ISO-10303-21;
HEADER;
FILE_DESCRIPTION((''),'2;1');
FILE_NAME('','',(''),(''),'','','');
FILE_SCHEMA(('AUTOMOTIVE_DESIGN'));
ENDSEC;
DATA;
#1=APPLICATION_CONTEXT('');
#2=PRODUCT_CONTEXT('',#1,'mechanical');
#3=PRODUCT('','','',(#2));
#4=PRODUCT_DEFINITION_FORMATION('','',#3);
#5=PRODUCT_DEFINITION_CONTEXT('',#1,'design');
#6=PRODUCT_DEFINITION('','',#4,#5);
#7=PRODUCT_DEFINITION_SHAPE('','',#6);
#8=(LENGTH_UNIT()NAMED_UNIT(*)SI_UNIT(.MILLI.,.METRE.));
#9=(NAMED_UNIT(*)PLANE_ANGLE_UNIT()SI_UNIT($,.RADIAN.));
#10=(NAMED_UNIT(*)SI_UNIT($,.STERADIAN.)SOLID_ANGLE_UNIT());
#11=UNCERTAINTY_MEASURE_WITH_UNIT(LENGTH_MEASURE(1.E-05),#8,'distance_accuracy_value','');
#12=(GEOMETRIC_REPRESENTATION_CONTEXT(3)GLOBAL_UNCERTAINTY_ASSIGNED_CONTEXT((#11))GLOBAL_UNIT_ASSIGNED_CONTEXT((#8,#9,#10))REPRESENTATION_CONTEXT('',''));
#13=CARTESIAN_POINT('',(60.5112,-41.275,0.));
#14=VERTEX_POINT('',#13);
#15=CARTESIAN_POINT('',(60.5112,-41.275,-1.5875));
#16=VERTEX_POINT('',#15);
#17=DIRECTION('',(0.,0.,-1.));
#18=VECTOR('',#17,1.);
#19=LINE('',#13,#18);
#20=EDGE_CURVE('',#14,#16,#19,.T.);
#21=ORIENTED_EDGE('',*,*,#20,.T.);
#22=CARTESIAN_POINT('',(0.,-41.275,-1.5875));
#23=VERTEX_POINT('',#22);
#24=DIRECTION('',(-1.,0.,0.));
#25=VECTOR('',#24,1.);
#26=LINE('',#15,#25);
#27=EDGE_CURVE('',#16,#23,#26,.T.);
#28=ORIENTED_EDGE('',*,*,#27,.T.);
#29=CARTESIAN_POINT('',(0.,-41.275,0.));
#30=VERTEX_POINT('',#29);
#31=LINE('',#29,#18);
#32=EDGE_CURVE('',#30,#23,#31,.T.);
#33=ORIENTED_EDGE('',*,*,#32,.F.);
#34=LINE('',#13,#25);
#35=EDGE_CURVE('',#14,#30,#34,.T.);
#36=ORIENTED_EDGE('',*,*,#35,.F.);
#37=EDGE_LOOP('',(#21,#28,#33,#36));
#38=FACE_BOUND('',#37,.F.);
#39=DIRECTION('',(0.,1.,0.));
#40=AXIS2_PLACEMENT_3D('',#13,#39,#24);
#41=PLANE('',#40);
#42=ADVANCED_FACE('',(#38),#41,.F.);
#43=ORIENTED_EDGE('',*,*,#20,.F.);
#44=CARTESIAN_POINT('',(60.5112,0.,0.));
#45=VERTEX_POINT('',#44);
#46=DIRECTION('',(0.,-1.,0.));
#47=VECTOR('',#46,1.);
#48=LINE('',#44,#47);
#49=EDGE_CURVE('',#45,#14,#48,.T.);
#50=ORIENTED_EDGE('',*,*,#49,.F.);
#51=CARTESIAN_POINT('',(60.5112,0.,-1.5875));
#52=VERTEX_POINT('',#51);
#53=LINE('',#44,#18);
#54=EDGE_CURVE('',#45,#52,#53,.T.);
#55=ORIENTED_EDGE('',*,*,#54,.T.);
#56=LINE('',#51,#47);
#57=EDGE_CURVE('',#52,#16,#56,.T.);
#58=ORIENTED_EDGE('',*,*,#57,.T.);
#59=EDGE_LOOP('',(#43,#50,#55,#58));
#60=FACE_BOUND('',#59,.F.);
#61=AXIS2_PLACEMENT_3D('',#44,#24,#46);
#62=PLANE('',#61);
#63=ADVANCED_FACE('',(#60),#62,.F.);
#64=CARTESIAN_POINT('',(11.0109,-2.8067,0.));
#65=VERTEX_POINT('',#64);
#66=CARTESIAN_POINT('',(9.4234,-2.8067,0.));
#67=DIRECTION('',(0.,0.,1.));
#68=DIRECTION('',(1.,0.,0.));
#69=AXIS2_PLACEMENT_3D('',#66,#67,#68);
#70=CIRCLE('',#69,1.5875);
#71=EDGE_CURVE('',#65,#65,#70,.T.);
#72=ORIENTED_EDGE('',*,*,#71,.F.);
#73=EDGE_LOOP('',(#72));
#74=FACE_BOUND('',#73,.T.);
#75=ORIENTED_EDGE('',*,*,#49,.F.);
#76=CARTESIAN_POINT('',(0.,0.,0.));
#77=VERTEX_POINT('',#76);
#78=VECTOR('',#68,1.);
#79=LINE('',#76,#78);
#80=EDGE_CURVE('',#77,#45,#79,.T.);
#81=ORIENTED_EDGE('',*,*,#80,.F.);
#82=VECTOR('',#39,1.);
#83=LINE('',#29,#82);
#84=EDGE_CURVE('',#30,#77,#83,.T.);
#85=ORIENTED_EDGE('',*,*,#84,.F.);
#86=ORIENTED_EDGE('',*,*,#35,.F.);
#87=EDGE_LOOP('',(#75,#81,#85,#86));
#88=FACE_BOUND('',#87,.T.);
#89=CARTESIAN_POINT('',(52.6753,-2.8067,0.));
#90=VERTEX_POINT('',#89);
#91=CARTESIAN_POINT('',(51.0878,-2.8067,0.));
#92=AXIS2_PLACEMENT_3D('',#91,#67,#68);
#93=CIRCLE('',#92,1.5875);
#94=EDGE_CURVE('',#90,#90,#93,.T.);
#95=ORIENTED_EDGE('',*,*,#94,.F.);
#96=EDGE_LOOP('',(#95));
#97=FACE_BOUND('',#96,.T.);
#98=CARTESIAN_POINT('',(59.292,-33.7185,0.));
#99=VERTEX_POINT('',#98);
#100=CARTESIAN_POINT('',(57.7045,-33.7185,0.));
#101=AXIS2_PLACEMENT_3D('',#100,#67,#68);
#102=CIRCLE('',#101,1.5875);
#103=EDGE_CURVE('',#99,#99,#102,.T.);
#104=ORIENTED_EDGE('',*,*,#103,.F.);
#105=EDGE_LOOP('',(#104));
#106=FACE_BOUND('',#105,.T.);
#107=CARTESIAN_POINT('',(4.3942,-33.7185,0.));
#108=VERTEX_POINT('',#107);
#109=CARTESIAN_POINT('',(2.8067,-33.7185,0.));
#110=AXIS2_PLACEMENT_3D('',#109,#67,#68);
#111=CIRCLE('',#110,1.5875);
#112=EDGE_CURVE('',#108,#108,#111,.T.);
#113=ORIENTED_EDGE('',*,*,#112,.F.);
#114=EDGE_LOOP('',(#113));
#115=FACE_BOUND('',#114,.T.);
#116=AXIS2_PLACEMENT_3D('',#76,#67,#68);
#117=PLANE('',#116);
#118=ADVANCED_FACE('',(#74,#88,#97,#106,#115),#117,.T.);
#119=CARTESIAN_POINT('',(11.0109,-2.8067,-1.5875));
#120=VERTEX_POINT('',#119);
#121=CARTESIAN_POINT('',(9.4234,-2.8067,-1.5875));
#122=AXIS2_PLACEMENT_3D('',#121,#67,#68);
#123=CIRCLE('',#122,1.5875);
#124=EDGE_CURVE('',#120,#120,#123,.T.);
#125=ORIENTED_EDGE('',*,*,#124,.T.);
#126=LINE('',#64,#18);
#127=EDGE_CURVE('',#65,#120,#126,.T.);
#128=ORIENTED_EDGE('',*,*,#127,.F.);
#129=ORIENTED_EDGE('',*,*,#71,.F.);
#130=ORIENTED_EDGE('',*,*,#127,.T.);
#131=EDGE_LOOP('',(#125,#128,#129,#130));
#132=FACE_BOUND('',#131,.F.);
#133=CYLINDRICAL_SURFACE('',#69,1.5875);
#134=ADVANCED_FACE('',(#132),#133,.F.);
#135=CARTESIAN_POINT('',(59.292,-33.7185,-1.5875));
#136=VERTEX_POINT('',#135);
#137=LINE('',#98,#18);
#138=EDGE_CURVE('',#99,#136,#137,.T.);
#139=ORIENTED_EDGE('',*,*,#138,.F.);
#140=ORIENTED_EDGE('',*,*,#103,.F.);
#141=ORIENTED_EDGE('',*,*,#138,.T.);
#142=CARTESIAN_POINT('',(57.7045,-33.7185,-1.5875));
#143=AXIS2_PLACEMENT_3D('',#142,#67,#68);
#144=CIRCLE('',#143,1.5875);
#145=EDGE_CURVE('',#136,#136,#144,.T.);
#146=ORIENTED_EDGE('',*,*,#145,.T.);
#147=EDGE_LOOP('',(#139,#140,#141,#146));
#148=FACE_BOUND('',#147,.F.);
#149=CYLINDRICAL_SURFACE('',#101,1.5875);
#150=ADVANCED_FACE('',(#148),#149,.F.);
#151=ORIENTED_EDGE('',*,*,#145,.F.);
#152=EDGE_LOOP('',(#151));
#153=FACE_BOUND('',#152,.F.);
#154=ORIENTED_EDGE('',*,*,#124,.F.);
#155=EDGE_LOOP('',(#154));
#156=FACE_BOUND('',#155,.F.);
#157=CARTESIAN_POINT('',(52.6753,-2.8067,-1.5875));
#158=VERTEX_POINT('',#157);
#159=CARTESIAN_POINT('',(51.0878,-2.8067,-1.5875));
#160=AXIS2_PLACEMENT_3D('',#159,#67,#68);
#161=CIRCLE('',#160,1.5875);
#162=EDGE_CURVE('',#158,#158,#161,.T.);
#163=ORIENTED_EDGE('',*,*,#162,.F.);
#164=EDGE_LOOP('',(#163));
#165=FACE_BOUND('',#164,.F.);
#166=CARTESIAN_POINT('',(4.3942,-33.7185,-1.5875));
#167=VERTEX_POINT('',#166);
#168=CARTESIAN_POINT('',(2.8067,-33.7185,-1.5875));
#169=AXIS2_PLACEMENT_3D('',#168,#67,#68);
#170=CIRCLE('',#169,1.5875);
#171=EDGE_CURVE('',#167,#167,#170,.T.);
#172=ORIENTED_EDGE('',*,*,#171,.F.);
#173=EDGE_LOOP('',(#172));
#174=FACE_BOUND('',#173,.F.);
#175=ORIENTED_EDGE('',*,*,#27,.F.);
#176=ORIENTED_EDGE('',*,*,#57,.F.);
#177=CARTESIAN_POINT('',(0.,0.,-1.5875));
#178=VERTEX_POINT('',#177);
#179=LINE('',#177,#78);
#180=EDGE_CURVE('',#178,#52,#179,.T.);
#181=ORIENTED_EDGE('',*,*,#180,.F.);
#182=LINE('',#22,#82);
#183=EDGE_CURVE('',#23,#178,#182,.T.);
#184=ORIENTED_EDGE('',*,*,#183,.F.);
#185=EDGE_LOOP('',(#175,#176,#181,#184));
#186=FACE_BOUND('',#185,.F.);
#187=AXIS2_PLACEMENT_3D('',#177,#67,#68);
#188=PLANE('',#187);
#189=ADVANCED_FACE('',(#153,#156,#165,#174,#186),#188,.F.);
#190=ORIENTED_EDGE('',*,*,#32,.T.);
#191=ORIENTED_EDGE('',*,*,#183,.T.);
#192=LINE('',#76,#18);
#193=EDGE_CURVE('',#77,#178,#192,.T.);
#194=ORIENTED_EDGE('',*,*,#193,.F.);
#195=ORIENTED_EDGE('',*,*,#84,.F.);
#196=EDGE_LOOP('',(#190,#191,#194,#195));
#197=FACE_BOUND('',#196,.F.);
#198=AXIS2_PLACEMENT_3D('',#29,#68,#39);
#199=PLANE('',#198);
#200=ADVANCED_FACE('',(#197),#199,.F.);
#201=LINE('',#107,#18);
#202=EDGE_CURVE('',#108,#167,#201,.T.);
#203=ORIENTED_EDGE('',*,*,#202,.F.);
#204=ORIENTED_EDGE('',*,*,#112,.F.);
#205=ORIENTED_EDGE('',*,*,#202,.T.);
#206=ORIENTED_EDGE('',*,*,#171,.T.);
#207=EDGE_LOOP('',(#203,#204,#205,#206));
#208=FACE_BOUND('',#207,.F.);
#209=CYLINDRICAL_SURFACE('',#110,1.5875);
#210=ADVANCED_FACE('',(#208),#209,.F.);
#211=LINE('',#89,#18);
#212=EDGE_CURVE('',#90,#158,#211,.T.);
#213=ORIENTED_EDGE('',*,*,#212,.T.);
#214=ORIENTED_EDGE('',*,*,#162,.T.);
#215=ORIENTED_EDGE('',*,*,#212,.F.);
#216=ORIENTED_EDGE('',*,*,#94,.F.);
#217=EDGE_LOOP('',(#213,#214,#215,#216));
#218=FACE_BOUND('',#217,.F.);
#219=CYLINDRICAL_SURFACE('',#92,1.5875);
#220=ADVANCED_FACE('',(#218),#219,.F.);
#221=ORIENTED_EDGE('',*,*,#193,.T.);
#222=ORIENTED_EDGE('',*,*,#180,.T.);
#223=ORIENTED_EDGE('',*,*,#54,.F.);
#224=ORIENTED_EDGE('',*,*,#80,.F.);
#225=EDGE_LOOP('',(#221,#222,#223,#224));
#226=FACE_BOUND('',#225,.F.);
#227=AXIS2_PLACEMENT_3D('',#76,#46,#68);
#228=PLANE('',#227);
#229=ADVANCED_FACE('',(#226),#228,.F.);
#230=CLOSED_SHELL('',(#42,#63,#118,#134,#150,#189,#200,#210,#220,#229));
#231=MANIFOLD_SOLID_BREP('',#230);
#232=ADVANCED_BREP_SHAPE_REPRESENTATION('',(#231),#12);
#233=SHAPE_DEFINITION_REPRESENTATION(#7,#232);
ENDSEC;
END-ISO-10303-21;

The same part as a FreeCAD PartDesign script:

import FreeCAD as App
import Part
import Sketcher
Q = App.Units.Quantity


def add_polygon(sketch, points):
    """Adds a closed chain of lines whose ends are joined by coincident constraints."""
    first, n = sketch.GeometryCount, len(points)
    for a, b in zip(points, points[1:] + points[:1]):
        sketch.addGeometry(Part.LineSegment(App.Vector(*a, 0), App.Vector(*b, 0)), False)
    for i in range(n):
        sketch.addConstraint(Sketcher.Constraint("Coincident", first + i, 2, first + (i + 1) % n, 1))

doc = App.newDocument("Part")
params = doc.addObject("Spreadsheet::Sheet", "Params")
for row, (alias, value) in enumerate([
    ("sketch1_height", "1.625 in"),
    ("pad1_length", "0.0625 in"),
    ("sketch2_diameter", "0.125 in"),
    ("pocket1_length", "0.0625 in"),
], start=1):
    params.set(f"A{row}", alias)
    params.set(f"B{row}", "=" + value)
    params.setAlias(f"B{row}", alias)

body = doc.addObject("PartDesign::Body", "Body")

# Sketch on XY plane
sketch1 = doc.addObject("Sketcher::SketchObject", "Sketch")
body.addObject(sketch1)
sketch1.AttachmentSupport = (doc.XY_Plane, [""])
sketch1.MapMode = "FlatFace"
add_polygon(sketch1, [(61, 0), (0, 0), (0, -41), (61, -41)])  # lines 0-3
sketch1.addConstraint(Sketcher.Constraint("Horizontal", 0))
sketch1.addConstraint(Sketcher.Constraint("Vertical", 1))
sketch1.addConstraint(Sketcher.Constraint("Horizontal", 2))
sketch1.addConstraint(Sketcher.Constraint("Vertical", 3))
sketch1.addConstraint(Sketcher.Constraint("Coincident", 0, 2, -1, 1))
sketch1.addConstraint(Sketcher.Constraint("DistanceY", 1, 2, 1, 1, Q("1.625 in")))
sketch1.addConstraint(Sketcher.Constraint("DistanceX", 0, 2, 0, 1, 60.5112))
sketch1.setExpression("Constraints[9]", "Params.sketch1_height")
pad1 = doc.addObject("PartDesign::Pad", "Pad")
body.addObject(pad1)
pad1.Profile = sketch1
pad1.setExpression("Length", "Params.pad1_length")
pad1.Reversed = True

# Sketch on XY plane
sketch2 = doc.addObject("Sketcher::SketchObject", "Sketch001")
body.addObject(sketch2)
sketch2.AttachmentSupport = (doc.XY_Plane, [""])
sketch2.MapMode = "FlatFace"
sketch2.addGeometry(Part.Circle(App.Vector(2.8, -33.7, 0), App.Vector(0, 0, 1), 1.6), False)
sketch2.addGeometry(Part.Circle(App.Vector(57.7, -33.7, 0), App.Vector(0, 0, 1), 1.6), False)
sketch2.addGeometry(Part.Circle(App.Vector(9.4, -2.8, 0), App.Vector(0, 0, 1), 1.6), False)
sketch2.addGeometry(Part.Circle(App.Vector(51.1, -2.8, 0), App.Vector(0, 0, 1), 1.6), False)
sketch2.addConstraint(Sketcher.Constraint("Equal", 0, 1))
sketch2.addConstraint(Sketcher.Constraint("Equal", 1, 2))
sketch2.addConstraint(Sketcher.Constraint("Equal", 2, 3))
sketch2.addConstraint(Sketcher.Constraint("Horizontal", 0, 3, 1, 3))
sketch2.addConstraint(Sketcher.Constraint("Horizontal", 2, 3, 3, 3))
sketch2.addConstraint(Sketcher.Constraint("Diameter", 0, Q("0.125 in")))
sketch2.addConstraint(Sketcher.Constraint("DistanceX", -1, 1, 2, 3, Q("0.371 in")))
sketch2.addConstraint(Sketcher.Constraint("DistanceX", -1, 1, 0, 3, Q("0.1105 in")))
sketch2.addConstraint(Sketcher.Constraint("DistanceY", 2, 3, -1, 1, Q("0.1105 in")))
sketch2.addConstraint(Sketcher.Constraint("DistanceY", 0, 3, 2, 3, Q("1.217 in")))
sketch2.addConstraint(Sketcher.Constraint("DistanceX", 3, 3, 1, 3, Q("0.2605 in")))
sketch2.addConstraint(Sketcher.Constraint("DistanceX", -1, 1, 1, 3, 57.7045))
sketch2.setExpression("Constraints[5]", "Params.sketch2_diameter")
pocket1 = doc.addObject("PartDesign::Pocket", "Pocket")
body.addObject(pocket1)
pocket1.Profile = sketch2
pocket1.setExpression("Length", "Params.pocket1_length")

doc.recompute()
